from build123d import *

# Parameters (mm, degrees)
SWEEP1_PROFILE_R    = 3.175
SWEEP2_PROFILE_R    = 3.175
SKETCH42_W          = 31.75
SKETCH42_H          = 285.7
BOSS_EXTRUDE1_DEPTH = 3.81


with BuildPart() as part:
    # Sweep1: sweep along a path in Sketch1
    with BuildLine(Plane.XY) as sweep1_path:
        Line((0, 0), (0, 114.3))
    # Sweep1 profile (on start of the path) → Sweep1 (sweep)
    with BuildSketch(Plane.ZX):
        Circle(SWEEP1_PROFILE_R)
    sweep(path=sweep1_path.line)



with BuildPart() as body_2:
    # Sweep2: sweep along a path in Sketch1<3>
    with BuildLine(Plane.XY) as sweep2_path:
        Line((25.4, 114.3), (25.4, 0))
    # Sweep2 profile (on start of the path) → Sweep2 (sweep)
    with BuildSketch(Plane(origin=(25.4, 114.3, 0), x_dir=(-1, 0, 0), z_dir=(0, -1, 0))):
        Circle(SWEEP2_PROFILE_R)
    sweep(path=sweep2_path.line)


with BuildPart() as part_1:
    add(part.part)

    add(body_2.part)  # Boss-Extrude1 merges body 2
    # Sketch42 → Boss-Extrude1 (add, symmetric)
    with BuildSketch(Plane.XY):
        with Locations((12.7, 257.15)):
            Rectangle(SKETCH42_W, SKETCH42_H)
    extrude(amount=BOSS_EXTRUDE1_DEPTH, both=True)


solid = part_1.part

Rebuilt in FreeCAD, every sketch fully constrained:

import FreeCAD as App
import Part
import Sketcher

V = App.Vector
Q = App.Units.Quantity


def add_polygon(sketch, points):
    """Adds a closed chain of lines whose ends are joined by coincident constraints."""
    first, n = sketch.GeometryCount, len(points)
    for a, b in zip(points, points[1:] + points[:1]):
        sketch.addGeometry(Part.LineSegment(App.Vector(*a, 0), App.Vector(*b, 0)), False)
    for i in range(n):
        sketch.addConstraint(Sketcher.Constraint("Coincident", first + i, 2, first + (i + 1) % n, 1))

doc = App.newDocument("Part")
body = doc.addObject("PartDesign::Body", "Body")

sketch1 = body.newObject("Sketcher::SketchObject", "Sketch")
sketch1.AttachmentSupport = (doc.getObject("XZ_Plane"), [""])
sketch1.MapMode = "FlatFace"
sketch1.addGeometry(Part.Circle(V(0, 0, 0), V(0, 0, 1), 3.2), False)
sketch1.addConstraint([
    Sketcher.Constraint("Coincident", 0, 3, -1, 1),
    Sketcher.Constraint("Diameter", 0, Q("0.25 in")),
])

sketch2 = body.newObject("Sketcher::SketchObject", "Sketch001")
sketch2.AttachmentSupport = (doc.getObject("XY_Plane"), [""])
sketch2.MapMode = "FlatFace"
sketch2.addGeometry(Part.LineSegment(V(0, 0, 0), V(0, 114, 0)), False)
sketch2.addConstraint([
    Sketcher.Constraint("Vertical", 0),
    Sketcher.Constraint("Coincident", 0, 1, -1, 1),
    Sketcher.Constraint("DistanceY", 0, 1, 0, 2, Q("4.5 in")),
])
doc.recompute()

additivepipe = body.newObject("PartDesign::AdditivePipe", "AdditivePipe")
additivepipe.Profile = sketch1
additivepipe.Spine = (sketch2, ["Edge1"])
body2 = doc.addObject("PartDesign::Body", "Body001")

sketch3 = body2.newObject("Sketcher::SketchObject", "Sketch002")
sketch3.AttachmentSupport = (doc.getObject("XZ_Plane001"), [""])
sketch3.MapMode = "FlatFace"
sketch3.AttachmentOffset = App.Placement(V(0, 0, -4.5 * 25.4), App.Rotation())
sketch3.addGeometry(Part.Circle(V(25.4, 0, 0), V(0, 0, 1), 3.2), False)
sketch3.addConstraint([
    Sketcher.Constraint("PointOnObject", 0, 3, -1),
    Sketcher.Constraint("Diameter", 0, Q("0.25 in")),
    Sketcher.Constraint("DistanceX", -1, 1, 0, 3, Q("1 in")),
])

sketch4 = body2.newObject("Sketcher::SketchObject", "Sketch003")
sketch4.AttachmentSupport = (doc.getObject("XY_Plane001"), [""])
sketch4.MapMode = "FlatFace"
sketch4.addGeometry(Part.LineSegment(V(25, 114, 0), V(25, 0, 0)), False)
sketch4.addConstraint([
    Sketcher.Constraint("Vertical", 0),
    Sketcher.Constraint("PointOnObject", 0, 2, -1),
    Sketcher.Constraint("DistanceY", 0, 2, 0, 1, Q("4.5 in")),
    Sketcher.Constraint("DistanceX", -1, 1, 0, 1, Q("1 in")),
])
doc.recompute()

additivepipe2 = body2.newObject("PartDesign::AdditivePipe", "AdditivePipe001")
additivepipe2.Profile = sketch3
additivepipe2.Spine = (sketch4, ["Edge1"])
body.AllowCompound = True
doc.recompute()

boolean = body.newObject("PartDesign::Boolean", "Boolean")
boolean.Type = "Fuse"
boolean.addObjects([body2])

sketch5 = body.newObject("Sketcher::SketchObject", "Sketch004")
sketch5.AttachmentSupport = (doc.getObject("XY_Plane"), [""])
sketch5.MapMode = "FlatFace"
add_polygon(sketch5, [(-3, 400), (-3, 114), (29, 114), (29, 400)])
sketch5.addConstraint([
    Sketcher.Constraint("Vertical", 0),
    Sketcher.Constraint("Horizontal", 1),
    Sketcher.Constraint("Vertical", 2),
    Sketcher.Constraint("Horizontal", 3),
    Sketcher.Constraint("DistanceX", 1, 1, 1, 2, Q("1.25 in")),
    Sketcher.Constraint("DistanceY", -1, 1, 0, 2, Q("4.5 in")),
    Sketcher.Constraint("DistanceX", 0, 2, -1, 1, Q("0.125 in")),
    Sketcher.Constraint("DistanceY", 0, 2, 0, 1, 285.7),
])
pad1 = body.newObject("PartDesign::Pad", "Pad")
pad1.Profile = sketch5
pad1.Length = Q("0.3 in")
pad1.Midplane = True

doc.recompute()
